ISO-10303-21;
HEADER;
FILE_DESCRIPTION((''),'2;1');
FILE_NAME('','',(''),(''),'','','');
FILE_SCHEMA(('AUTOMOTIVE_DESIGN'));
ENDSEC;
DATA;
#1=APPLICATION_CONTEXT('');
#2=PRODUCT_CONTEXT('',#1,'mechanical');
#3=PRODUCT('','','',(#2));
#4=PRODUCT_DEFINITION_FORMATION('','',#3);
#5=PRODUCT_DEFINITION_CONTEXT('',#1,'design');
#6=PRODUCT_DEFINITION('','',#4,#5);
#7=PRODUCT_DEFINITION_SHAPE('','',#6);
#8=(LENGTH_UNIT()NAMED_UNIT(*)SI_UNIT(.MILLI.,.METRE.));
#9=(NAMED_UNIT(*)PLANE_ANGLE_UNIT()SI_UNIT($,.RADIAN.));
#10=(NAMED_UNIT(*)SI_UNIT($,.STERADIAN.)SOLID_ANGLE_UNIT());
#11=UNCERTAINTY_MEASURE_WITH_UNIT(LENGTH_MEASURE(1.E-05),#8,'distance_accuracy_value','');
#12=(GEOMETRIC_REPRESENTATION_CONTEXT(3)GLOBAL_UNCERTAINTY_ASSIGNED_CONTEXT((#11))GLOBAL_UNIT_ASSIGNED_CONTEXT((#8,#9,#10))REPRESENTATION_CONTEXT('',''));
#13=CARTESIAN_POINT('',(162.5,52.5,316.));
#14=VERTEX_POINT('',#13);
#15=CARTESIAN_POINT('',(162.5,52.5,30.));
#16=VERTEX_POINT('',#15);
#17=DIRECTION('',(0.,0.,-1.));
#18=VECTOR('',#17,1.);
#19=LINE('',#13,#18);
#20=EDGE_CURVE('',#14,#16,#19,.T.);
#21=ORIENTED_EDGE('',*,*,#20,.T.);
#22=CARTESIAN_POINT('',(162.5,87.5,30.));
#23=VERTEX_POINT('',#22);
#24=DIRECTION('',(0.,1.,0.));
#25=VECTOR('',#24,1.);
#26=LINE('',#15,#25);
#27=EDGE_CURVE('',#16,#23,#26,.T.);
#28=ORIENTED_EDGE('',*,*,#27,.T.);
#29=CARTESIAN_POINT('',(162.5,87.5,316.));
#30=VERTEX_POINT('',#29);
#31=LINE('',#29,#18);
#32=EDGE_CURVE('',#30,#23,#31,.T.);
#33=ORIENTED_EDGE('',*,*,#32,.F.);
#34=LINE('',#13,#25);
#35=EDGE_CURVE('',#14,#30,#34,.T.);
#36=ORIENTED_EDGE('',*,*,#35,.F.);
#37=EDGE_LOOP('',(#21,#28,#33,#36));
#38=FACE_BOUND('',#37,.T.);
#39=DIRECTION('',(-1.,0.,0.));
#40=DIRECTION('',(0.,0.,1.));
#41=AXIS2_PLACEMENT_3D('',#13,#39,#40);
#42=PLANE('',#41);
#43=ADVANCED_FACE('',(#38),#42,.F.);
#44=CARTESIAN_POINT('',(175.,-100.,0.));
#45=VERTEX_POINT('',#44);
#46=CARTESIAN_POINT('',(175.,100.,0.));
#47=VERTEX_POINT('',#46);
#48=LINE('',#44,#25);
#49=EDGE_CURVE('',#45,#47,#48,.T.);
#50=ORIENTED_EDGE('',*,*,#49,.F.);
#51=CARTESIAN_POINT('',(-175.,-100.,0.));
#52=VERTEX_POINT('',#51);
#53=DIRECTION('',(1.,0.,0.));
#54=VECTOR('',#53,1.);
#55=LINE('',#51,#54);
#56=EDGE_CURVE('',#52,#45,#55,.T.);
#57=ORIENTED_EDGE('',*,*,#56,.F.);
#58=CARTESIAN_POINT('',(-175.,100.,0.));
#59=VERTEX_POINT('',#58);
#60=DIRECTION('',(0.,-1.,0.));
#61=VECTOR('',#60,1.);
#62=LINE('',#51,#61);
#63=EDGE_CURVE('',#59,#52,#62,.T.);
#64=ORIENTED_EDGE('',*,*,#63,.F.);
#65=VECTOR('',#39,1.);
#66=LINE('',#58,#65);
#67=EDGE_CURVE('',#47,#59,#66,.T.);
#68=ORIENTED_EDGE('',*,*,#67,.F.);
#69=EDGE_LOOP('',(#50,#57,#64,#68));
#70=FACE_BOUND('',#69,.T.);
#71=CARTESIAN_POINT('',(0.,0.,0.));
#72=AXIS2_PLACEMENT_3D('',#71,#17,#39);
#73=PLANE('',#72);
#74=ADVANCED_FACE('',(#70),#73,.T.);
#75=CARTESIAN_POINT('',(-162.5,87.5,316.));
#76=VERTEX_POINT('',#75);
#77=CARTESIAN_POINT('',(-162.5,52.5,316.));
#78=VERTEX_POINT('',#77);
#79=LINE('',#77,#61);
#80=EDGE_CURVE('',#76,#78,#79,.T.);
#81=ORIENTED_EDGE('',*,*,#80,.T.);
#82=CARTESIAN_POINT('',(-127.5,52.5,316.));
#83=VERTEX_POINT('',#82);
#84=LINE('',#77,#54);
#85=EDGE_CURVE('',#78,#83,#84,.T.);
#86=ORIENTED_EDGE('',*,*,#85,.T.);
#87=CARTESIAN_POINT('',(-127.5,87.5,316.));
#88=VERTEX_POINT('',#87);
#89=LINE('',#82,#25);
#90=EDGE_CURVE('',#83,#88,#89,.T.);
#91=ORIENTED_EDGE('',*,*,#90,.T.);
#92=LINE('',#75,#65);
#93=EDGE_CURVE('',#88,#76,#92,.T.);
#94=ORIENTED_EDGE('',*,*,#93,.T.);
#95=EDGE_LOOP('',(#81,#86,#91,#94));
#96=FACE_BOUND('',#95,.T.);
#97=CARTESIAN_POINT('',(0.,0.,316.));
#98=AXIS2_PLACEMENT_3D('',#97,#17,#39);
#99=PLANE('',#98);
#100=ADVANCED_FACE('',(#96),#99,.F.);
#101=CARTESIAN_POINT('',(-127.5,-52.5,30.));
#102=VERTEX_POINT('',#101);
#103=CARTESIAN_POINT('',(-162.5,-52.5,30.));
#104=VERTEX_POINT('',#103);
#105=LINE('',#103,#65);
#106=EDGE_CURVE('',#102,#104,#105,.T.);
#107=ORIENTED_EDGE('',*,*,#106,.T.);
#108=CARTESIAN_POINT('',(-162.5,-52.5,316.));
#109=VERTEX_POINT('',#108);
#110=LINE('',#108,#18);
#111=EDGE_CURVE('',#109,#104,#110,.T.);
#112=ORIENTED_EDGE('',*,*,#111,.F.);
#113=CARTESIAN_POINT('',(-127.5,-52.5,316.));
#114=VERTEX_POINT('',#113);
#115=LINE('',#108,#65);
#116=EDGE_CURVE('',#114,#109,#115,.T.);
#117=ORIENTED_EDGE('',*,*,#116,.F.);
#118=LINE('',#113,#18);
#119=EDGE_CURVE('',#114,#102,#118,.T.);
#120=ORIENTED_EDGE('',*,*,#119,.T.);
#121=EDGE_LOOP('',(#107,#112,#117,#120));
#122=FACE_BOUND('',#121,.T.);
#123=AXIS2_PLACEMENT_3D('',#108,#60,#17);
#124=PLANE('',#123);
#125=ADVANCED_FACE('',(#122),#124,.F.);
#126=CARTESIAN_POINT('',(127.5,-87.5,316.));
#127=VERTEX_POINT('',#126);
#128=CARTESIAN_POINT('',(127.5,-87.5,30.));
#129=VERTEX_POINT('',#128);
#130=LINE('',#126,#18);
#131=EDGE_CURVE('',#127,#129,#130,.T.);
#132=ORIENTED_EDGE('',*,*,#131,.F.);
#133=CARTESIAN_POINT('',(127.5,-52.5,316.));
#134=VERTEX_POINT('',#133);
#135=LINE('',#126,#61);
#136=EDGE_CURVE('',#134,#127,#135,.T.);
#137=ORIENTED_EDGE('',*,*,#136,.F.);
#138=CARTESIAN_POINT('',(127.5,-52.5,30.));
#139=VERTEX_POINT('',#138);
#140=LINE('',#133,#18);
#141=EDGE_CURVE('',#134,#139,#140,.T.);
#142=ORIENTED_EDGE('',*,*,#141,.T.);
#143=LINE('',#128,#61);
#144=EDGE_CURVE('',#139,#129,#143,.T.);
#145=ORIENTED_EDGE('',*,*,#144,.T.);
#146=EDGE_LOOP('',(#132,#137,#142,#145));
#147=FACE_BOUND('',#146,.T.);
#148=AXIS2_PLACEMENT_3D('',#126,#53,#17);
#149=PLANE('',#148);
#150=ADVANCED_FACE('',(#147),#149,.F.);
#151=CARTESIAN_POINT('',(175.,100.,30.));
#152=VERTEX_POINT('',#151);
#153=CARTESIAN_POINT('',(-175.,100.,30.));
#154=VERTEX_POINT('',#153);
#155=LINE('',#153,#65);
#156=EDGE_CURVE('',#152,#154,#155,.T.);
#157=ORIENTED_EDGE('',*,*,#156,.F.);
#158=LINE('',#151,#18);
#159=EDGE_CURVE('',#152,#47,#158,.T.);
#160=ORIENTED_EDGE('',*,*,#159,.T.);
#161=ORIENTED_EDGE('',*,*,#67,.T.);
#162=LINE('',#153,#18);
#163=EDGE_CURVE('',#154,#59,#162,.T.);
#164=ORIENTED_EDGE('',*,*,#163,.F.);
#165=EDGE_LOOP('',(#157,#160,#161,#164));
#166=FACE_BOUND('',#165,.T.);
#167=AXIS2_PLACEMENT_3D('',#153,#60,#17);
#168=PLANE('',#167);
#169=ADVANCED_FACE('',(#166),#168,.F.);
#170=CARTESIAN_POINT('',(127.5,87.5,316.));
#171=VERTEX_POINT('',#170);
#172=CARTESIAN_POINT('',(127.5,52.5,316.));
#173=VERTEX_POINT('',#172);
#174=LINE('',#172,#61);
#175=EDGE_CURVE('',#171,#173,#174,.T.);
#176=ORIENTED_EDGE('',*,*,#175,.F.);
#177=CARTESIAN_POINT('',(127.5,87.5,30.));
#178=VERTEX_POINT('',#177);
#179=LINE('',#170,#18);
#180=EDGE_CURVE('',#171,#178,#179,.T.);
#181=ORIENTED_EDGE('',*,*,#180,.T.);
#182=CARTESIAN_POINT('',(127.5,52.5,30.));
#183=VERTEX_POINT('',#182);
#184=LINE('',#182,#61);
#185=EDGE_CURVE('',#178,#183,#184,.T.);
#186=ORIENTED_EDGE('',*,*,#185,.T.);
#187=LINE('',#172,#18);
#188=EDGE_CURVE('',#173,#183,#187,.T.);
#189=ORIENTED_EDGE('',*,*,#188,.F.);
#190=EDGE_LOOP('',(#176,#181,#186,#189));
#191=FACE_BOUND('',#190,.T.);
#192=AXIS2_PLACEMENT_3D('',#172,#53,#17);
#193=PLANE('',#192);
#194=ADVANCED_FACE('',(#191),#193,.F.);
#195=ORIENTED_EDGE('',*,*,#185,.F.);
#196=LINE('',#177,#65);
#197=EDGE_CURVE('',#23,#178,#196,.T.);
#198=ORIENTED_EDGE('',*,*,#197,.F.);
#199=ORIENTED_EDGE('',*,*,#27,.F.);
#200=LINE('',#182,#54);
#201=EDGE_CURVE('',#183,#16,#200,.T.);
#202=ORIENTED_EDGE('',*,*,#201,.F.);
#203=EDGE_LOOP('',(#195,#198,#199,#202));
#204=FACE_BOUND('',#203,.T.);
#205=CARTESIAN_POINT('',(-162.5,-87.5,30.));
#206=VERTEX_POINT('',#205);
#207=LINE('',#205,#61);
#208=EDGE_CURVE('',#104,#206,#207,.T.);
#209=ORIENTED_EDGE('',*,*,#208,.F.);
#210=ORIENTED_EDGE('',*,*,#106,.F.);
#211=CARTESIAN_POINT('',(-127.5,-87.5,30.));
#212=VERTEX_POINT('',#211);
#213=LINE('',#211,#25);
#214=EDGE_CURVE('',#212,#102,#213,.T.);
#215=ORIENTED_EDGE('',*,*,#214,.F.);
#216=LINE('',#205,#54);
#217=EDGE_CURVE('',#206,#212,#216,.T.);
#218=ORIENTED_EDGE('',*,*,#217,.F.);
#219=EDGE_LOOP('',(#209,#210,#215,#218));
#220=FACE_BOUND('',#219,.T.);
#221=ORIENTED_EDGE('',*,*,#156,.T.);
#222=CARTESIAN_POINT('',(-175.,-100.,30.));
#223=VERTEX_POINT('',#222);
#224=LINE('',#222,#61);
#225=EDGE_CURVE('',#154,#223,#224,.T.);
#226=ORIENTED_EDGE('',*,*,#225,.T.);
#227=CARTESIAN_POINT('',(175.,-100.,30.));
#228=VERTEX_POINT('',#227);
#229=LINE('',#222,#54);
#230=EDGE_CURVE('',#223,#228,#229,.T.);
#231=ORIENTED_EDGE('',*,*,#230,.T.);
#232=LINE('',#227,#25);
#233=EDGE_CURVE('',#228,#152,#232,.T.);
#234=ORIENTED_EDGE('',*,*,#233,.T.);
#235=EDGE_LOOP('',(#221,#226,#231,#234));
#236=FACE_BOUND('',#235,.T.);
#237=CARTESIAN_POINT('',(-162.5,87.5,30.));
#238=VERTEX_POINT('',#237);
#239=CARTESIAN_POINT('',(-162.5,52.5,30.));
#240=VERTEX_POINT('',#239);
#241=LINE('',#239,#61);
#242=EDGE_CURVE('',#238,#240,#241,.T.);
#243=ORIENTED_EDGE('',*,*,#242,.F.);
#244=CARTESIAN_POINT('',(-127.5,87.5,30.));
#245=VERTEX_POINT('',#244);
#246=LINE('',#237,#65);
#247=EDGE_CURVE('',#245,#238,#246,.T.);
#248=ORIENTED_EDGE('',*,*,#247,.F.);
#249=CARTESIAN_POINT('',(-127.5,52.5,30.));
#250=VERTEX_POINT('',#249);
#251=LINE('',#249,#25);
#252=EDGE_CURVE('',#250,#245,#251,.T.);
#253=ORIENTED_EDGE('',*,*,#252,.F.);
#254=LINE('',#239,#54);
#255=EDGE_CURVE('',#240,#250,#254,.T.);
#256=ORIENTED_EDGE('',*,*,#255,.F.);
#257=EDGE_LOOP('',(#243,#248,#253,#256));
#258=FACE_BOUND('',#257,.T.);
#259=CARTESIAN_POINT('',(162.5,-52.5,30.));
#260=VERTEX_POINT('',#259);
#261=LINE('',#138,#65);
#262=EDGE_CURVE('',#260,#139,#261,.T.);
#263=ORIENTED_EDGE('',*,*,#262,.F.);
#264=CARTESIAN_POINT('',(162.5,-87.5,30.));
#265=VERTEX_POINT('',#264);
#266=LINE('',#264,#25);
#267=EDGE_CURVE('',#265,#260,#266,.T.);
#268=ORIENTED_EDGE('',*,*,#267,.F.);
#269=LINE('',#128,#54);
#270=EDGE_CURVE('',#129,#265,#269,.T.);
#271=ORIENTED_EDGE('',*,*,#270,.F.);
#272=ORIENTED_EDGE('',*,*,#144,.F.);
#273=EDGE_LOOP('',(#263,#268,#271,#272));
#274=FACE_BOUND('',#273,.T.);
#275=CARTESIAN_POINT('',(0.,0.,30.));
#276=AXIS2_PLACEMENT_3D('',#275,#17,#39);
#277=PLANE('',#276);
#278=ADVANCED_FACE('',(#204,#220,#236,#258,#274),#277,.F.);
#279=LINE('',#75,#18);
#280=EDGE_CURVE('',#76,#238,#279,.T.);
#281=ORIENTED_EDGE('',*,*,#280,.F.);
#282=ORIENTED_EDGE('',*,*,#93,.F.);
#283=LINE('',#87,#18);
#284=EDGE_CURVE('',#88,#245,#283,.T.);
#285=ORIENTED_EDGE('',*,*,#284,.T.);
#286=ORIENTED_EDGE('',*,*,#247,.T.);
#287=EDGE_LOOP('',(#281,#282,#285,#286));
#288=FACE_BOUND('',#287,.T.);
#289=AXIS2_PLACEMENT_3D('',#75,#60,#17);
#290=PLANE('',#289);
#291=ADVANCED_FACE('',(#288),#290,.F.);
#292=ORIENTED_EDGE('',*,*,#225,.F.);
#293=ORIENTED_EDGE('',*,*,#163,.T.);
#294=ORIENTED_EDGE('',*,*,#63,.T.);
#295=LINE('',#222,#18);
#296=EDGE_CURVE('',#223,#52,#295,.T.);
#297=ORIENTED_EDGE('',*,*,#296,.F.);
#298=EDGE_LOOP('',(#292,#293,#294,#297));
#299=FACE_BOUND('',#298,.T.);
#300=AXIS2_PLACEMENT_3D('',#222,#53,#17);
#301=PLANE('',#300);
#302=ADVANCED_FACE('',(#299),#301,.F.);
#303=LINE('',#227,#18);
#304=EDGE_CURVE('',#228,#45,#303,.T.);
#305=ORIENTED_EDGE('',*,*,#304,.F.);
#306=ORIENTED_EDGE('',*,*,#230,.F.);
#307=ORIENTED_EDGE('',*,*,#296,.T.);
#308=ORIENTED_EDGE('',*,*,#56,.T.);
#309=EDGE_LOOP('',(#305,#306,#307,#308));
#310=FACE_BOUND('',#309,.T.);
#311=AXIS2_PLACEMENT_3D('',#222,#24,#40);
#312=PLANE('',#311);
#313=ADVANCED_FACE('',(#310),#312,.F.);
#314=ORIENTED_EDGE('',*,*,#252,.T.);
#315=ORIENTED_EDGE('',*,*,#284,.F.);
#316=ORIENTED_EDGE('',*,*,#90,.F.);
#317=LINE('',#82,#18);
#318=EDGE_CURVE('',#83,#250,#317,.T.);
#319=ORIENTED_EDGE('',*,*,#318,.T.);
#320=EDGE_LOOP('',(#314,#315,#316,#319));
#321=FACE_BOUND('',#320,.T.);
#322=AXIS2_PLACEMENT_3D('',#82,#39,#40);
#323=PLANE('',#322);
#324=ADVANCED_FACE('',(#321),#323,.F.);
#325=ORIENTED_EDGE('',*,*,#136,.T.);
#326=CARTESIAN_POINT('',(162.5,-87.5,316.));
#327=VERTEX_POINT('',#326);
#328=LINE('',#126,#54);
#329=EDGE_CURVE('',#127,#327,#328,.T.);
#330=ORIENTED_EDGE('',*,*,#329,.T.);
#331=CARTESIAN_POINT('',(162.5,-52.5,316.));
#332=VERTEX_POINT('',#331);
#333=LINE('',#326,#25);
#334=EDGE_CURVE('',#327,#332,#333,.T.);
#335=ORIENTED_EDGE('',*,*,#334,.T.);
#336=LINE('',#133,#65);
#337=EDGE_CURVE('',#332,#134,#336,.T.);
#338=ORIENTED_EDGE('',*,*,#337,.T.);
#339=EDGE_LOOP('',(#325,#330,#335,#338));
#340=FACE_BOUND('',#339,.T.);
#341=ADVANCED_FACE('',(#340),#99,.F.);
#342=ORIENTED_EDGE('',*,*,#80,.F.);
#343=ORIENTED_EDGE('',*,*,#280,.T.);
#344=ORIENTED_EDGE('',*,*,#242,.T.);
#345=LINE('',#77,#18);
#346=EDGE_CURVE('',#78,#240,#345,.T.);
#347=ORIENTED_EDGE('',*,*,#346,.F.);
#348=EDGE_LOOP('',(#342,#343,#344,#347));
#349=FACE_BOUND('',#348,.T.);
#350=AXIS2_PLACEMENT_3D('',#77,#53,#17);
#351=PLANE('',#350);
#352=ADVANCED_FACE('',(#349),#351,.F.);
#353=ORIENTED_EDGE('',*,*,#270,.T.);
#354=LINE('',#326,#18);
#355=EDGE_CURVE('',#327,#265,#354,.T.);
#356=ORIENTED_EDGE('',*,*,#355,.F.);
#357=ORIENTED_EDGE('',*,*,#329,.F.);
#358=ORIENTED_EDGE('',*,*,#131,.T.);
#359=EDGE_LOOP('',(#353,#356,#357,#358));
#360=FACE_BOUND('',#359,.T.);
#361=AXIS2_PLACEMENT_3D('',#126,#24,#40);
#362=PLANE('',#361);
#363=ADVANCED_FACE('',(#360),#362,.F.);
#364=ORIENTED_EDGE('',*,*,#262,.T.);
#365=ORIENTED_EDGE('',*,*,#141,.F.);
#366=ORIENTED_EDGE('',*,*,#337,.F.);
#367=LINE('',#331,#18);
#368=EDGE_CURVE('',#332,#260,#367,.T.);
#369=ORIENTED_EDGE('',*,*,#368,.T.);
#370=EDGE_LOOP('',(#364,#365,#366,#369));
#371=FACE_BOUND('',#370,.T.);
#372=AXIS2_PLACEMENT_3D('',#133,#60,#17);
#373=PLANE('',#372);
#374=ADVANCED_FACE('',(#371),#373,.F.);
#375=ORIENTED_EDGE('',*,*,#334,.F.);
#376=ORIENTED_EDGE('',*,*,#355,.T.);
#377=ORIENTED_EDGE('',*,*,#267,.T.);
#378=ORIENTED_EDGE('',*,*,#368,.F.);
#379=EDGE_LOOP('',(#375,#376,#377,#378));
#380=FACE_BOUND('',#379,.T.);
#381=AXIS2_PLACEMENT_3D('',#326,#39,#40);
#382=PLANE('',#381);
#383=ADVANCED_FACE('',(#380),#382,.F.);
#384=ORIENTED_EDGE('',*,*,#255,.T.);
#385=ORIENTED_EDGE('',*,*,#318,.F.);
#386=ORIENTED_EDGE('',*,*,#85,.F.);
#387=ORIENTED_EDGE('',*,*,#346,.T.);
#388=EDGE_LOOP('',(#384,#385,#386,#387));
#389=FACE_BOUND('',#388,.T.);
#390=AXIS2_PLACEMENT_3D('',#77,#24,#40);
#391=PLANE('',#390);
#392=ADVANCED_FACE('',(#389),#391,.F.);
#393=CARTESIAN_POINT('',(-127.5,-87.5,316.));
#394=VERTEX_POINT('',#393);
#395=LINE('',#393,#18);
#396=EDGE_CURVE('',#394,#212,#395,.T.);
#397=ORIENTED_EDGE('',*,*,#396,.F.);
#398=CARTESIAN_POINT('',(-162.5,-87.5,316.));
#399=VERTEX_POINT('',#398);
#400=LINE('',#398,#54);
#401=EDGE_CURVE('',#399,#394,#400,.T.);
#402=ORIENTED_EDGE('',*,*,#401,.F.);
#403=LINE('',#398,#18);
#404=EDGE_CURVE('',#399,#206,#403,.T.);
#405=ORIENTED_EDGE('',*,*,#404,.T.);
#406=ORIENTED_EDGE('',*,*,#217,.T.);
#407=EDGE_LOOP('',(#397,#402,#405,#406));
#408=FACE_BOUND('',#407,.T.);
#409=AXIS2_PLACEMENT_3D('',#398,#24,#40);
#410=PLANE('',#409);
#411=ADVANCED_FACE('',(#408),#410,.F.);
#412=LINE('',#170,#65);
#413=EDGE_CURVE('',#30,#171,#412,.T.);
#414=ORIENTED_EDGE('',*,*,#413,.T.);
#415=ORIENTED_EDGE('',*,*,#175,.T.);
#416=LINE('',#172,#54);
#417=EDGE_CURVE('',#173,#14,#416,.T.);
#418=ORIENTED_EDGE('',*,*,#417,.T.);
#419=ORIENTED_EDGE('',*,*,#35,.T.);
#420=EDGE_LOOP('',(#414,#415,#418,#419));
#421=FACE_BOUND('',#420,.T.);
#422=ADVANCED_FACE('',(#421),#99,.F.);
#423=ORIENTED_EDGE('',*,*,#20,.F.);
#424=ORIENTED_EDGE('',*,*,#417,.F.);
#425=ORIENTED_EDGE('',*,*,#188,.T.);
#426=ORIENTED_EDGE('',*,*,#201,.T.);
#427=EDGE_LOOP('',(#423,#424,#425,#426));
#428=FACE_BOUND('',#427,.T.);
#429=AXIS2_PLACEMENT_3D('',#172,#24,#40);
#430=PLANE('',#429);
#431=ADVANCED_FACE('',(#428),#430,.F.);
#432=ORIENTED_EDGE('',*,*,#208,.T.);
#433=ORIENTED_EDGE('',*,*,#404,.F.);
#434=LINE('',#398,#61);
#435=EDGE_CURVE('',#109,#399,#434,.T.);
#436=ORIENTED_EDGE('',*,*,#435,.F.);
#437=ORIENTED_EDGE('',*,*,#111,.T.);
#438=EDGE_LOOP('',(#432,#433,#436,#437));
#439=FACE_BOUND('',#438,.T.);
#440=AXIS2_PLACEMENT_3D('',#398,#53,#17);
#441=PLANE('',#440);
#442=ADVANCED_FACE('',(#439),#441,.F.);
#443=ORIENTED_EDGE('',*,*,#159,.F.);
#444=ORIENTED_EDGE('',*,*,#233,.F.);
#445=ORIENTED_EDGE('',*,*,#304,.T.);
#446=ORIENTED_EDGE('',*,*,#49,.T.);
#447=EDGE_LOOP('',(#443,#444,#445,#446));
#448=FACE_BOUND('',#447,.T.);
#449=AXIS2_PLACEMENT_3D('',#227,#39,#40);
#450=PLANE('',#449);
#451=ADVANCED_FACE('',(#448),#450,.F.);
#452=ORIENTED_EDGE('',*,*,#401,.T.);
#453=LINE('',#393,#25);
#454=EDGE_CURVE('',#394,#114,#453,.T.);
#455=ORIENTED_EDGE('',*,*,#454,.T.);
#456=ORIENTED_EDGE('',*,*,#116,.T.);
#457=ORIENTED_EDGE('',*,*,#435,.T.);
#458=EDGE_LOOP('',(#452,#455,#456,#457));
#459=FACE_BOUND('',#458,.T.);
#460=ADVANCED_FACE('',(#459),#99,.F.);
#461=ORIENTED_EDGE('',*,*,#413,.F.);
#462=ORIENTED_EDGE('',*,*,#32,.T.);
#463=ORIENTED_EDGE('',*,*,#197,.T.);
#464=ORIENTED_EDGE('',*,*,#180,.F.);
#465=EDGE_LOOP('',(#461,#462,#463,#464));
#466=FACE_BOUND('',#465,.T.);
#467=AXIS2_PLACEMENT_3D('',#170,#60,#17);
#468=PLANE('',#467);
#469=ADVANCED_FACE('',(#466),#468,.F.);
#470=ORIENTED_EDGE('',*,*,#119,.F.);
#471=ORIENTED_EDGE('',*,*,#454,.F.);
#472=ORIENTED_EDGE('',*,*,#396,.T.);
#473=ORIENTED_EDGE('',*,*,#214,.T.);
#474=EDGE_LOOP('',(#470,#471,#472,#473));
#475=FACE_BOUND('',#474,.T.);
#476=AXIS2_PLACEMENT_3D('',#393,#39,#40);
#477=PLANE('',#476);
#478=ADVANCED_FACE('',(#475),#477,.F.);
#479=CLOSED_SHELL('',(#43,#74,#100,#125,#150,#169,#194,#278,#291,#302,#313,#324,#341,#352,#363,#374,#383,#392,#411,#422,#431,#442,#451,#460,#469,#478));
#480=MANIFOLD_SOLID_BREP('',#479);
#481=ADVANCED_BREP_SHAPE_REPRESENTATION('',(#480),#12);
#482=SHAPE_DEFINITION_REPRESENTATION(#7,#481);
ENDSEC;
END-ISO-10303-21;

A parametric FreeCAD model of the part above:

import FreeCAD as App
import Part
import Sketcher
Q = App.Units.Quantity

doc = App.newDocument("Part")
body = doc.addObject("PartDesign::Body", "Body")

# Sketch on XY plane
sketch1 = body.newObject("Sketcher::SketchObject", "Sketch")
sketch1.AttachmentSupport = (doc.getObject("XY_Plane"), [""])
sketch1.MapMode = "FlatFace"
sketch1.addGeometry([
    Part.LineSegment(App.Vector(-175, 100, 0), App.Vector(-175, -100, 0)),
    Part.LineSegment(App.Vector(-175, -100, 0), App.Vector(175, -100, 0)),
    Part.LineSegment(App.Vector(175, -100, 0), App.Vector(175, 100, 0)),
    Part.LineSegment(App.Vector(175, 100, 0), App.Vector(-175, 100, 0)),
], False)
sketch1.addConstraint([
    Sketcher.Constraint("Coincident", 0, 2, 1, 1),
    Sketcher.Constraint("Coincident", 1, 2, 2, 1),
    Sketcher.Constraint("Coincident", 2, 2, 3, 1),
    Sketcher.Constraint("Coincident", 3, 2, 0, 1),
    Sketcher.Constraint("Vertical", 0),
    Sketcher.Constraint("Horizontal", 1),
    Sketcher.Constraint("Vertical", 2),
    Sketcher.Constraint("Horizontal", 3),
    Sketcher.Constraint("Symmetric", 0, 2, 2, 2, -1, 1),
    Sketcher.Constraint("DistanceX", 1, 1, 1, 2, Q("350 mm")),
    Sketcher.Constraint("DistanceY", 0, 2, 0, 1, Q("200 mm")),
])
pad1 = body.newObject("PartDesign::Pad", "Pad")
pad1.Profile = sketch1
pad1.Length = 30

# Sketch on XY plane
sketch2 = body.newObject("Sketcher::SketchObject", "Sketch001")
sketch2.AttachmentSupport = (doc.getObject("XY_Plane"), [""])
sketch2.MapMode = "FlatFace"
sketch2.AttachmentOffset = App.Placement(App.Vector(0, 0, 30), App.Rotation())
sketch2.addGeometry([
    Part.LineSegment(App.Vector(128, 88, 0), App.Vector(128, 52, 0)),  # 0
    Part.LineSegment(App.Vector(128, 52, 0), App.Vector(162, 52, 0)),  # 1
    Part.LineSegment(App.Vector(162, 52, 0), App.Vector(162, 88, 0)),  # 2
    Part.LineSegment(App.Vector(162, 88, 0), App.Vector(128, 88, 0)),  # 3
    Part.LineSegment(App.Vector(128, -52, 0), App.Vector(128, -88, 0)),  # 4
    Part.LineSegment(App.Vector(128, -88, 0), App.Vector(162, -88, 0)),  # 5
    Part.LineSegment(App.Vector(162, -88, 0), App.Vector(162, -52, 0)),  # 6
    Part.LineSegment(App.Vector(162, -52, 0), App.Vector(128, -52, 0)),  # 7
    Part.LineSegment(App.Vector(-162, -52, 0), App.Vector(-162, -88, 0)),  # 8
    Part.LineSegment(App.Vector(-162, -88, 0), App.Vector(-128, -88, 0)),  # 9
    Part.LineSegment(App.Vector(-128, -88, 0), App.Vector(-128, -52, 0)),  # 10
    Part.LineSegment(App.Vector(-128, -52, 0), App.Vector(-162, -52, 0)),  # 11
    Part.LineSegment(App.Vector(-162, 88, 0), App.Vector(-162, 52, 0)),  # 12
    Part.LineSegment(App.Vector(-162, 52, 0), App.Vector(-128, 52, 0)),  # 13
    Part.LineSegment(App.Vector(-128, 52, 0), App.Vector(-128, 88, 0)),  # 14
    Part.LineSegment(App.Vector(-128, 88, 0), App.Vector(-162, 88, 0)),  # 15
], False)
sketch2.addConstraint([
    Sketcher.Constraint("Coincident", 0, 2, 1, 1),
    Sketcher.Constraint("Coincident", 1, 2, 2, 1),
    Sketcher.Constraint("Coincident", 2, 2, 3, 1),
    Sketcher.Constraint("Coincident", 3, 2, 0, 1),
    Sketcher.Constraint("Coincident", 4, 2, 5, 1),
    Sketcher.Constraint("Coincident", 5, 2, 6, 1),
    Sketcher.Constraint("Coincident", 6, 2, 7, 1),
    Sketcher.Constraint("Coincident", 7, 2, 4, 1),
    Sketcher.Constraint("Coincident", 8, 2, 9, 1),
    Sketcher.Constraint("Coincident", 9, 2, 10, 1),
    Sketcher.Constraint("Coincident", 10, 2, 11, 1),
    Sketcher.Constraint("Coincident", 11, 2, 8, 1),
    Sketcher.Constraint("Coincident", 12, 2, 13, 1),
    Sketcher.Constraint("Coincident", 13, 2, 14, 1),
    Sketcher.Constraint("Coincident", 14, 2, 15, 1),
    Sketcher.Constraint("Coincident", 15, 2, 12, 1),
    Sketcher.Constraint("Vertical", 0),
    Sketcher.Constraint("Horizontal", 1),
    Sketcher.Constraint("Vertical", 2),
    Sketcher.Constraint("Horizontal", 3),
    Sketcher.Constraint("Vertical", 4),
    Sketcher.Constraint("Horizontal", 5),
    Sketcher.Constraint("Vertical", 6),
    Sketcher.Constraint("Horizontal", 7),
    Sketcher.Constraint("Vertical", 8),
    Sketcher.Constraint("Horizontal", 9),
    Sketcher.Constraint("Vertical", 10),
    Sketcher.Constraint("Horizontal", 11),
    Sketcher.Constraint("Vertical", 12),
    Sketcher.Constraint("Horizontal", 13),
    Sketcher.Constraint("Vertical", 14),
    Sketcher.Constraint("Horizontal", 15),
    Sketcher.Constraint("Symmetric", 2, 2, 8, 2, -1, 1),
    Sketcher.Constraint("Symmetric", 0, 2, 10, 2, -1, 1),
    Sketcher.Constraint("Symmetric", 6, 2, 12, 2, -1, 1),
    Sketcher.Constraint("Symmetric", 4, 2, 14, 2, -1, 1),
    Sketcher.Constraint("Symmetric", 5, 2, 8, 2, -2),
    Sketcher.Constraint("Symmetric", 7, 2, 10, 2, -2),
    Sketcher.Constraint("Equal", 15, 0),
    Sketcher.Constraint("DistanceX", 1, 1, 1, 2, Q("35 mm")),
    Sketcher.Constraint("DistanceY", 4, 2, 0, 2, Q("140 mm")),
    Sketcher.Constraint("DistanceX", 8, 2, 4, 2, Q("290 mm")),
])
pad2 = body.newObject("PartDesign::Pad", "Pad001")
pad2.Profile = sketch2
pad2.Length = 286

doc.recompute()
